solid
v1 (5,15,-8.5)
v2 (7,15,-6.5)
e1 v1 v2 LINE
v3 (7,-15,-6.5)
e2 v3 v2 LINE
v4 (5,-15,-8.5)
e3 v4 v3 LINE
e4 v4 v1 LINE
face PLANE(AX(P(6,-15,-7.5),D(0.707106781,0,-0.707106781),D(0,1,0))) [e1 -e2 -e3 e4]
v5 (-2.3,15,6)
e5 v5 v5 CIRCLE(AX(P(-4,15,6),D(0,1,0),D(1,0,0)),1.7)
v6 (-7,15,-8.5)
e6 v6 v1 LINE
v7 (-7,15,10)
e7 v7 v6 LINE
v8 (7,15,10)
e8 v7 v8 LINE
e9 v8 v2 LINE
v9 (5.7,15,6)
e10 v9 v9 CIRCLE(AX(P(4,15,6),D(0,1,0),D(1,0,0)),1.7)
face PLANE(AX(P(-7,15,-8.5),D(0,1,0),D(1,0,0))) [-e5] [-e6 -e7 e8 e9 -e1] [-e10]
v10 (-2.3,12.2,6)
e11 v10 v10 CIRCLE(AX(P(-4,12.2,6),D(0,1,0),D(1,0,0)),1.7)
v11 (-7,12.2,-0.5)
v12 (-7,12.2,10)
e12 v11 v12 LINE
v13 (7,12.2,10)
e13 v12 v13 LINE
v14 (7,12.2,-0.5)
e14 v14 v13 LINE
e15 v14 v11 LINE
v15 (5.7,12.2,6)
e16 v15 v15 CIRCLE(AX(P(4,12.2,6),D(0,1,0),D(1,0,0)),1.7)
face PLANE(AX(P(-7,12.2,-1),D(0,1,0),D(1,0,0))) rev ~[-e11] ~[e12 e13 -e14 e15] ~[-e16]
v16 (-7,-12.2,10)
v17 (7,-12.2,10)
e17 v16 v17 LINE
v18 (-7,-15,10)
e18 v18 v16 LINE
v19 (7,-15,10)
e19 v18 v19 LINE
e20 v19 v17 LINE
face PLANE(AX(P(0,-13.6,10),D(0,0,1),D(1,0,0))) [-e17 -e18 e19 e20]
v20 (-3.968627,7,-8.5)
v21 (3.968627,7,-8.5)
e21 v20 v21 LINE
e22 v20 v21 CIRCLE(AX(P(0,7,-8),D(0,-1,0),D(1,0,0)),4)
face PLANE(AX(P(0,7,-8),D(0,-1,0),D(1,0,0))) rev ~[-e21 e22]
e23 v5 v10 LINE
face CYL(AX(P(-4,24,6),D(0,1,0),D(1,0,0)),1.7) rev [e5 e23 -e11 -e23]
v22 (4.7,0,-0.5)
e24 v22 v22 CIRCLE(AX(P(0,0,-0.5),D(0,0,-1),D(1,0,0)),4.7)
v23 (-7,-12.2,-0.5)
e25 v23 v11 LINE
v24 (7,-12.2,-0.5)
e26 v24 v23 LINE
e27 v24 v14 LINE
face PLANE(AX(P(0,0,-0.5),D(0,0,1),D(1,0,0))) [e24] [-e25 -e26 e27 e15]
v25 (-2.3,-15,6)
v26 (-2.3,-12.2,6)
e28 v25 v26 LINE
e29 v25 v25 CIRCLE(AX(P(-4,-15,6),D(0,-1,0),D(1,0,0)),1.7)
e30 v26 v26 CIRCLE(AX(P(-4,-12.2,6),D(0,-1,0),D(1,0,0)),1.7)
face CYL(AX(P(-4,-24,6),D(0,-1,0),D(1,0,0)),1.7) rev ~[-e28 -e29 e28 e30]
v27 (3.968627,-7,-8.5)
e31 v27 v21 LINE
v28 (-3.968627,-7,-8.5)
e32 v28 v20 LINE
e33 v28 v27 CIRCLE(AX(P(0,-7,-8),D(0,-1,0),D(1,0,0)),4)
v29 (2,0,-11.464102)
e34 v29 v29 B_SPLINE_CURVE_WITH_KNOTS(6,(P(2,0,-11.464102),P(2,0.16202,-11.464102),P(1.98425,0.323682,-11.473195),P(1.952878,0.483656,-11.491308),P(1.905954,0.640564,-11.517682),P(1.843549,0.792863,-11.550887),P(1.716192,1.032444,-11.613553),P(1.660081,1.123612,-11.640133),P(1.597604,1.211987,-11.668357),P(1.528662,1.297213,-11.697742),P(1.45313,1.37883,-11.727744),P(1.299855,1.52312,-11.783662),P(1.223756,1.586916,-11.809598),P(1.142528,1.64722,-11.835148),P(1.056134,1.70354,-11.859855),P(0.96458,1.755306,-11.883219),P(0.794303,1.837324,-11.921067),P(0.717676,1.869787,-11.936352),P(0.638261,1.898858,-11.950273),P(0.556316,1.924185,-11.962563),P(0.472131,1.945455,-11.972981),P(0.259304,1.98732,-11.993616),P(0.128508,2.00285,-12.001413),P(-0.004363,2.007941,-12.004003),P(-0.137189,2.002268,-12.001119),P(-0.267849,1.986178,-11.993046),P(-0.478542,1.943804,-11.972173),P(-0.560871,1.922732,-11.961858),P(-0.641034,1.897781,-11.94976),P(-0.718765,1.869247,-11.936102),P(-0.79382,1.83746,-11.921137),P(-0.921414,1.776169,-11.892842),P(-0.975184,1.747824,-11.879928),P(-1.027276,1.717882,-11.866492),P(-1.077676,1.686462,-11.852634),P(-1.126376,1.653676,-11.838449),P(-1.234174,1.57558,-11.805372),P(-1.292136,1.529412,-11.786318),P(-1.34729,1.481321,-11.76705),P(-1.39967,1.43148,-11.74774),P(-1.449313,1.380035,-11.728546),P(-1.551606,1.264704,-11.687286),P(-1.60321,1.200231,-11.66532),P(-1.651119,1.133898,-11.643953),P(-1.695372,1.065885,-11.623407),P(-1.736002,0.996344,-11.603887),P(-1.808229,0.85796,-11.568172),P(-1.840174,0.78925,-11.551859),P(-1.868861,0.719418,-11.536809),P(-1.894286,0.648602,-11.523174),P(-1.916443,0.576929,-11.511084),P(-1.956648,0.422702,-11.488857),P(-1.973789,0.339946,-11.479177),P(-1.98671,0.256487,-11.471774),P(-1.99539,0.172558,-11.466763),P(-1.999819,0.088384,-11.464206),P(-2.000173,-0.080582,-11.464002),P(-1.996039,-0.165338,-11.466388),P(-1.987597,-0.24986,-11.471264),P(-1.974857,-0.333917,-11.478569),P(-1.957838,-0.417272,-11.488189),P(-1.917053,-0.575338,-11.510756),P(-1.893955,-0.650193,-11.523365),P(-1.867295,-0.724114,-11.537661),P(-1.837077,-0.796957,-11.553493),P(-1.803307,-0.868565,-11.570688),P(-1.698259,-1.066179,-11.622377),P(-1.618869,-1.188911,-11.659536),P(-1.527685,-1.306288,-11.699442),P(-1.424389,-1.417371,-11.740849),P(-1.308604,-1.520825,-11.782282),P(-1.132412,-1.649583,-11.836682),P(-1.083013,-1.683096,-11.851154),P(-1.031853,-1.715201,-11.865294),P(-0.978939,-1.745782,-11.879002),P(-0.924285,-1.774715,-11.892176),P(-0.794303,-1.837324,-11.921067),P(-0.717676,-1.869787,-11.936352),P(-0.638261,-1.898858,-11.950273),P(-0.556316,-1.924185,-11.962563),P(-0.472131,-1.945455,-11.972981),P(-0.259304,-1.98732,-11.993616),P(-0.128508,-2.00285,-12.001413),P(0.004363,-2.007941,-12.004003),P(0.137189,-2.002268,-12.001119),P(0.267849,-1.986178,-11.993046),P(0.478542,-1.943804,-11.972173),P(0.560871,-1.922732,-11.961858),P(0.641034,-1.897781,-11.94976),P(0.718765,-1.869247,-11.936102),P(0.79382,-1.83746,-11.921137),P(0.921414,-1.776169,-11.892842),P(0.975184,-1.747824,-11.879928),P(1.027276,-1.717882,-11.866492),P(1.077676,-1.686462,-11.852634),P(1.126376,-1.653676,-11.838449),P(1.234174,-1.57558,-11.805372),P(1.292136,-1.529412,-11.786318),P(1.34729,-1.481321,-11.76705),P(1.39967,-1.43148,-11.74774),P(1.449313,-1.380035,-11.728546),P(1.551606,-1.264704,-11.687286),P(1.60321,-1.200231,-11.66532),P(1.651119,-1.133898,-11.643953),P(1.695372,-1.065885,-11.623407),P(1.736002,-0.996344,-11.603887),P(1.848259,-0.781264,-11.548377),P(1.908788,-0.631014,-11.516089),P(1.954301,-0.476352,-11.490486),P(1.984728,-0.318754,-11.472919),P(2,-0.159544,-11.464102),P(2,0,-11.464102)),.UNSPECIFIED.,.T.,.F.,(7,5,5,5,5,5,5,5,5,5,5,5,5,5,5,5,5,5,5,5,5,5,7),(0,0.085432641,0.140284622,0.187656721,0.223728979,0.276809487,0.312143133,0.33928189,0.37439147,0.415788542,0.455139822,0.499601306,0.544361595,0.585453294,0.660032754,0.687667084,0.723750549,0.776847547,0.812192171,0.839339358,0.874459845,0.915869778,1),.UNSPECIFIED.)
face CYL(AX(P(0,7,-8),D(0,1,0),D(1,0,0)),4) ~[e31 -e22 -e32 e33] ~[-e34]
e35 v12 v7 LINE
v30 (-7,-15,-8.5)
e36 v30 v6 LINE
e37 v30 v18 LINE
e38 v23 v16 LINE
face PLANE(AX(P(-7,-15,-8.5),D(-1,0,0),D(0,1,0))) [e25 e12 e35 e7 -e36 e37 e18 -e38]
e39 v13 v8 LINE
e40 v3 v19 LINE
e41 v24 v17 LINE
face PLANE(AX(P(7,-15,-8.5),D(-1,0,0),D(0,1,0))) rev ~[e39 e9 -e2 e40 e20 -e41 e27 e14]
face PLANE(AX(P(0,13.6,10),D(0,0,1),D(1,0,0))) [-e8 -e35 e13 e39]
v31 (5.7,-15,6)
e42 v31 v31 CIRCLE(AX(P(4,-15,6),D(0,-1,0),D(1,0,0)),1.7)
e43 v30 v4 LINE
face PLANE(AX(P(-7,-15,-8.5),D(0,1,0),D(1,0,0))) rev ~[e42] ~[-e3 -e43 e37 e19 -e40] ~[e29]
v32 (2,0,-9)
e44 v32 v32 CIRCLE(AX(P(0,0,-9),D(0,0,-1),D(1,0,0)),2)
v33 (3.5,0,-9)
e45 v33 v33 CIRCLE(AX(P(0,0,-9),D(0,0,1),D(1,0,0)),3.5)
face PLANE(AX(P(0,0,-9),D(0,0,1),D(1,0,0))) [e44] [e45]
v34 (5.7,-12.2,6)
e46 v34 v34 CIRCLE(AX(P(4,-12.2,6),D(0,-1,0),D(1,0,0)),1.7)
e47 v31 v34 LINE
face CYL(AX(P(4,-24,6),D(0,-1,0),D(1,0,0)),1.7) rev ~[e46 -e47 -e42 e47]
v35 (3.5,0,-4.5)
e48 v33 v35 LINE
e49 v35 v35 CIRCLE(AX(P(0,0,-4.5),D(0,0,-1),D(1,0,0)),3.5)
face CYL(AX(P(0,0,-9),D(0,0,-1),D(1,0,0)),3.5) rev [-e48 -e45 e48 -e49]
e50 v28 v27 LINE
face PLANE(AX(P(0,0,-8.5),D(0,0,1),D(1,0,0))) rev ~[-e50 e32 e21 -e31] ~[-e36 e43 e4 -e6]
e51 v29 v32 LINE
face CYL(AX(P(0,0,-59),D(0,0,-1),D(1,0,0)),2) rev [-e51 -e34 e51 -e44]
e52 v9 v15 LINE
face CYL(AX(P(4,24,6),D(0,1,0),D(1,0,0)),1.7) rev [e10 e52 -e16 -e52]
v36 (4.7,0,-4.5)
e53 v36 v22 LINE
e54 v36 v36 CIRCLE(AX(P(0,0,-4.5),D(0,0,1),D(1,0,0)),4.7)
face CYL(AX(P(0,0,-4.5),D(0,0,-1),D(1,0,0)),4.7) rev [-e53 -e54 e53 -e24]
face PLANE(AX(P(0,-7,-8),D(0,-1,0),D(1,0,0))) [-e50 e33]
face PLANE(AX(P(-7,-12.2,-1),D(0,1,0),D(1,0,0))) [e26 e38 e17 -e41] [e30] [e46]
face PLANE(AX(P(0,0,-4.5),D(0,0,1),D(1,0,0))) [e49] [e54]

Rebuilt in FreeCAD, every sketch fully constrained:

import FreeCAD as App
import Part
import Sketcher
from FreeCAD import Vector


def edges_at(feature, points):
    """Names of the edges that pass closest to the given points."""
    edges = feature.Shape.Edges
    near = lambda p: min(range(len(edges)), key=lambda i: edges[i].distToShape(Part.Vertex(*p))[0])
    return sorted({f"Edge{near(p) + 1}" for p in points})


def add_polygon(sketch, points):
    """Adds a closed chain of lines whose ends are joined by coincident constraints."""
    first, n = sketch.GeometryCount, len(points)
    for a, b in zip(points, points[1:] + points[:1]):
        sketch.addGeometry(Part.LineSegment(App.Vector(*a, 0), App.Vector(*b, 0)), False)
    for i in range(n):
        sketch.addConstraint(Sketcher.Constraint("Coincident", first + i, 2, first + (i + 1) % n, 1))

doc = App.newDocument("Part")
body = doc.addObject("PartDesign::Body", "Body")

sketch1 = doc.addObject("Sketcher::SketchObject", "Sketch")
body.addObject(sketch1)
sketch1.AttachmentSupport = (doc.XY_Plane, [""])
sketch1.MapMode = "FlatFace"
sketch1.AttachmentOffset = App.Placement(Vector(0, 0, -9), App.Rotation())
sketch1.addGeometry(Part.Circle(Vector(0, 0, 0), Vector(0, 0, 1), 3.5), False)
sketch1.addConstraint([
    Sketcher.Constraint("Coincident", 0, 3, -1, 1),
    Sketcher.Constraint("Diameter", 0, 7.0),
])
pad1 = doc.addObject("PartDesign::Pad", "Pad")
body.addObject(pad1)
pad1.Profile = sketch1
pad1.Length = 30
body2 = doc.addObject("PartDesign::Body", "Body001")

sketch2 = doc.addObject("Sketcher::SketchObject", "Sketch001")
body2.addObject(sketch2)
sketch2.AttachmentSupport = (doc.getObject("XY_Plane001"), [""])
sketch2.MapMode = "FlatFace"
sketch2.AttachmentOffset = App.Placement(Vector(0, 0, -4.5), App.Rotation())
sketch2.addGeometry(Part.Circle(Vector(0, 0, 0), Vector(0, 0, 1), 4.7), False)
sketch2.addConstraint([
    Sketcher.Constraint("Coincident", 0, 3, -1, 1),
    Sketcher.Constraint("Diameter", 0, 9.4),
])
pad2 = doc.addObject("PartDesign::Pad", "Pad001")
body2.addObject(pad2)
pad2.Profile = sketch2
pad2.Length = 30
doc.recompute()

boolean = doc.addObject("PartDesign::Boolean", "Boolean")
body2.addObject(boolean)
boolean.Type = "Fuse"
boolean.addObjects([body])
body3 = doc.addObject("PartDesign::Body", "Body002")

sketch3 = doc.addObject("Sketcher::SketchObject", "Sketch002")
body3.addObject(sketch3)
sketch3.AttachmentSupport = (doc.getObject("XY_Plane002"), [""])
sketch3.MapMode = "FlatFace"
sketch3.AttachmentOffset = App.Placement(Vector(0, 0, -59), App.Rotation())
sketch3.addGeometry(Part.Circle(Vector(0, 0, 0), Vector(0, 0, 1), 2), False)
sketch3.addConstraint([
    Sketcher.Constraint("Coincident", 0, 3, -1, 1),
    Sketcher.Constraint("Diameter", 0, 4.0),
])
pad3 = doc.addObject("PartDesign::Pad", "Pad002")
body3.addObject(pad3)
pad3.Profile = sketch3
pad3.Length = 62
body4 = doc.addObject("PartDesign::Body", "Body003")

sketch4 = doc.addObject("Sketcher::SketchObject", "Sketch003")
body4.addObject(sketch4)
sketch4.AttachmentSupport = (doc.getObject("XY_Plane003"), [""])
sketch4.MapMode = "FlatFace"
sketch4.addGeometry(Part.Circle(Vector(0, 0, 0), Vector(0, 0, 1), 4), False)
sketch4.addConstraint([
    Sketcher.Constraint("Coincident", 0, 3, -1, 1),
    Sketcher.Constraint("Diameter", 0, 8.0),
])
pad4 = doc.addObject("PartDesign::Pad", "Pad003")
body4.addObject(pad4)
pad4.Profile = sketch4
pad4.Length = 14
body5 = doc.addObject("PartDesign::Body", "Body004")
doc.recompute()

body4.Placement = App.Placement(Vector(0, 0, 0), App.Rotation(Vector(1, 0, 0), 90))
boolean2 = doc.addObject("PartDesign::Boolean", "Boolean001")
body5.addObject(boolean2)
boolean2.Type = "Fuse"
boolean2.addObjects([body4])
body6 = doc.addObject("PartDesign::Body", "Body005")
doc.recompute()

body5.Placement = App.Placement(Vector(0, 7, -8), App.Rotation(Vector(0, 0, 1), 0))
boolean3 = doc.addObject("PartDesign::Boolean", "Boolean002")
body6.addObject(boolean3)
boolean3.Type = "Fuse"
boolean3.addObjects([body5])
doc.recompute()

boolean4 = doc.addObject("PartDesign::Boolean", "Boolean003")
body6.addObject(boolean4)
boolean4.Type = "Cut"
boolean4.addObjects([body3])
body7 = doc.addObject("PartDesign::Body", "Body006")

sketch5 = doc.addObject("Sketcher::SketchObject", "Sketch004")
body7.addObject(sketch5)
sketch5.AttachmentSupport = (doc.getObject("XY_Plane006"), [""])
sketch5.MapMode = "FlatFace"
sketch5.addGeometry(Part.Circle(Vector(0, 0, 0), Vector(0, 0, 1), 1.7), False)
sketch5.addConstraint([
    Sketcher.Constraint("Coincident", 0, 3, -1, 1),
    Sketcher.Constraint("Diameter", 0, 3.4),
])
pad5 = doc.addObject("PartDesign::Pad", "Pad004")
body7.addObject(pad5)
pad5.Profile = sketch5
pad5.Length = 19
body8 = doc.addObject("PartDesign::Body", "Body007")
doc.recompute()

body7.Placement = App.Placement(Vector(0, 0, 0), App.Rotation(Vector(1, 0, 0), 90))
boolean5 = doc.addObject("PartDesign::Boolean", "Boolean004")
body8.addObject(boolean5)
boolean5.Type = "Fuse"
boolean5.addObjects([body7])
body9 = doc.addObject("PartDesign::Body", "Body008")
doc.recompute()

body8.Placement = App.Placement(Vector(4, 24, 6), App.Rotation(Vector(0, 0, 1), 0))
boolean6 = doc.addObject("PartDesign::Boolean", "Boolean005")
body9.addObject(boolean6)
boolean6.Type = "Fuse"
boolean6.addObjects([body8])
body10 = doc.addObject("PartDesign::Body", "Body009")

sketch6 = doc.addObject("Sketcher::SketchObject", "Sketch005")
body10.addObject(sketch6)
sketch6.AttachmentSupport = (doc.getObject("XY_Plane009"), [""])
sketch6.MapMode = "FlatFace"
sketch6.addGeometry(Part.Circle(Vector(0, 0, 0), Vector(0, 0, 1), 1.7), False)
sketch6.addConstraint([
    Sketcher.Constraint("Coincident", 0, 3, -1, 1),
    Sketcher.Constraint("Diameter", 0, 3.4),
])
pad6 = doc.addObject("PartDesign::Pad", "Pad005")
body10.addObject(pad6)
pad6.Profile = sketch6
pad6.Length = 19
body11 = doc.addObject("PartDesign::Body", "Body010")
doc.recompute()

body10.Placement = App.Placement(Vector(0, 0, 0), App.Rotation(Vector(1, 0, 0), 90))
boolean7 = doc.addObject("PartDesign::Boolean", "Boolean006")
body11.addObject(boolean7)
boolean7.Type = "Fuse"
boolean7.addObjects([body10])
body12 = doc.addObject("PartDesign::Body", "Body011")
doc.recompute()

body11.Placement = App.Placement(Vector(4, 24, 6), App.Rotation(Vector(0, 0, 1), 0))
boolean8 = doc.addObject("PartDesign::Boolean", "Boolean007")
body12.addObject(boolean8)
boolean8.Type = "Fuse"
boolean8.addObjects([body11])
body13 = doc.addObject("PartDesign::Body", "Body012")
doc.recompute()

mirroring = doc.addObject("Part::Mirroring", "Mirroring")
mirroring.Source = body12
mirroring.Base = Vector(0, 0, 0)
mirroring.Normal = Vector(0, 1, 0)
body13.BaseFeature = mirroring
doc.recompute()
body14 = doc.addObject("PartDesign::Body", "Body013")

sketch7 = doc.addObject("Sketcher::SketchObject", "Sketch006")
body14.addObject(sketch7)
sketch7.AttachmentSupport = (doc.getObject("XY_Plane013"), [""])
sketch7.MapMode = "FlatFace"
sketch7.addGeometry(Part.Circle(Vector(0, 0, 0), Vector(0, 0, 1), 1.7), False)
sketch7.addConstraint([
    Sketcher.Constraint("Coincident", 0, 3, -1, 1),
    Sketcher.Constraint("Diameter", 0, 3.4),
])
pad7 = doc.addObject("PartDesign::Pad", "Pad006")
body14.addObject(pad7)
pad7.Profile = sketch7
pad7.Length = 19
body15 = doc.addObject("PartDesign::Body", "Body014")
doc.recompute()

body14.Placement = App.Placement(Vector(0, 0, 0), App.Rotation(Vector(1, 0, 0), 90))
boolean9 = doc.addObject("PartDesign::Boolean", "Boolean008")
body15.addObject(boolean9)
boolean9.Type = "Fuse"
boolean9.addObjects([body14])
body16 = doc.addObject("PartDesign::Body", "Body015")
doc.recompute()

body15.Placement = App.Placement(Vector(-4, 24, 6), App.Rotation(Vector(0, 0, 1), 0))
boolean10 = doc.addObject("PartDesign::Boolean", "Boolean009")
body16.addObject(boolean10)
boolean10.Type = "Fuse"
boolean10.addObjects([body15])
body17 = doc.addObject("PartDesign::Body", "Body016")
doc.recompute()

mirroring2 = doc.addObject("Part::Mirroring", "Mirroring001")
mirroring2.Source = body16
mirroring2.Base = Vector(0, 0, 0)
mirroring2.Normal = Vector(0, 1, 0)
body17.BaseFeature = mirroring2
doc.recompute()
body18 = doc.addObject("PartDesign::Body", "Body017")

sketch8 = doc.addObject("Sketcher::SketchObject", "Sketch007")
body18.addObject(sketch8)
sketch8.AttachmentSupport = (doc.getObject("XY_Plane017"), [""])
sketch8.MapMode = "FlatFace"
sketch8.addGeometry(Part.Circle(Vector(0, 0, 0), Vector(0, 0, 1), 1.7), False)
sketch8.addConstraint([
    Sketcher.Constraint("Coincident", 0, 3, -1, 1),
    Sketcher.Constraint("Diameter", 0, 3.4),
])
pad8 = doc.addObject("PartDesign::Pad", "Pad007")
body18.addObject(pad8)
pad8.Profile = sketch8
pad8.Length = 19
body19 = doc.addObject("PartDesign::Body", "Body018")
doc.recompute()

body18.Placement = App.Placement(Vector(0, 0, 0), App.Rotation(Vector(1, 0, 0), 90))
boolean11 = doc.addObject("PartDesign::Boolean", "Boolean010")
body19.addObject(boolean11)
boolean11.Type = "Fuse"
boolean11.addObjects([body18])
body20 = doc.addObject("PartDesign::Body", "Body019")
body20.AllowCompound = True
doc.recompute()

body19.Placement = App.Placement(Vector(-4, 24, 6), App.Rotation(Vector(0, 0, 1), 0))
boolean12 = doc.addObject("PartDesign::Boolean", "Boolean011")
body20.addObject(boolean12)
boolean12.Type = "Fuse"
boolean12.addObjects([body19])
doc.recompute()

boolean13 = doc.addObject("PartDesign::Boolean", "Boolean012")
body20.addObject(boolean13)
boolean13.Type = "Fuse"
boolean13.addObjects([body9])
doc.recompute()

boolean14 = doc.addObject("PartDesign::Boolean", "Boolean013")
body20.addObject(boolean14)
boolean14.Type = "Fuse"
boolean14.addObjects([body13])
doc.recompute()

boolean15 = doc.addObject("PartDesign::Boolean", "Boolean014")
body20.addObject(boolean15)
boolean15.Type = "Fuse"
boolean15.addObjects([body17])
body21 = doc.addObject("PartDesign::Body", "Body020")

sketch9 = doc.addObject("Sketcher::SketchObject", "Sketch008")
body21.addObject(sketch9)
sketch9.AttachmentSupport = (doc.getObject("XY_Plane020"), [""])
sketch9.MapMode = "FlatFace"
sketch9.AttachmentOffset = App.Placement(Vector(0, 0, -1), App.Rotation())
add_polygon(sketch9, [(-7, 15), (-7, 12.2), (7, 12.2), (7, 15)])
sketch9.addConstraint([
    Sketcher.Constraint("Vertical", 0),
    Sketcher.Constraint("Horizontal", 1),
    Sketcher.Constraint("Vertical", 2),
    Sketcher.Constraint("Horizontal", 3),
    Sketcher.Constraint("DistanceX", 1, 1, 1, 2, 14.0),
    Sketcher.Constraint("DistanceY", 0, 2, 0, 1, 2.8),
    Sketcher.Constraint("DistanceX", 0, 2, -1, 1, 7.0),
    Sketcher.Constraint("DistanceY", -1, 1, 2, 2, 15.0),
])
pad9 = doc.addObject("PartDesign::Pad", "Pad008")
body21.addObject(pad9)
pad9.Profile = sketch9
pad9.Length = 11
body22 = doc.addObject("PartDesign::Body", "Body021")

sketch10 = doc.addObject("Sketcher::SketchObject", "Sketch009")
body22.addObject(sketch10)
sketch10.AttachmentSupport = (doc.getObject("XY_Plane021"), [""])
sketch10.MapMode = "FlatFace"
sketch10.AttachmentOffset = App.Placement(Vector(0, 0, -1), App.Rotation())
add_polygon(sketch10, [(-7, -12.2), (-7, -15), (7, -15), (7, -12.2)])
sketch10.addConstraint([
    Sketcher.Constraint("Vertical", 0),
    Sketcher.Constraint("Horizontal", 1),
    Sketcher.Constraint("Vertical", 2),
    Sketcher.Constraint("Horizontal", 3),
    Sketcher.Constraint("DistanceX", 1, 1, 1, 2, 14.0),
    Sketcher.Constraint("DistanceY", 0, 2, 0, 1, 2.8),
    Sketcher.Constraint("DistanceX", 0, 2, -1, 1, 7.0),
    Sketcher.Constraint("DistanceY", 0, 2, -1, 1, 15.0),
])
pad10 = doc.addObject("PartDesign::Pad", "Pad009")
body22.addObject(pad10)
pad10.Profile = sketch10
pad10.Length = 11
body23 = doc.addObject("PartDesign::Body", "Body022")

sketch11 = doc.addObject("Sketcher::SketchObject", "Sketch010")
body23.addObject(sketch11)
sketch11.AttachmentSupport = (doc.getObject("XY_Plane022"), [""])
sketch11.MapMode = "FlatFace"
sketch11.AttachmentOffset = App.Placement(Vector(0, 0, -8.5), App.Rotation())
add_polygon(sketch11, [(-7, 15), (-7, -15), (7, -15), (7, 15)])
sketch11.addConstraint([
    Sketcher.Constraint("Vertical", 0),
    Sketcher.Constraint("Horizontal", 1),
    Sketcher.Constraint("Vertical", 2),
    Sketcher.Constraint("Horizontal", 3),
    Sketcher.Constraint("Symmetric", 0, 2, 2, 2, -1, 1),
    Sketcher.Constraint("DistanceX", 1, 1, 1, 2, 14.0),
    Sketcher.Constraint("DistanceY", 0, 2, 0, 1, 30.0),
])
pad11 = doc.addObject("PartDesign::Pad", "Pad010")
body23.addObject(pad11)
pad11.Profile = sketch11
pad11.Length = 8
doc.recompute()

boolean16 = doc.addObject("PartDesign::Boolean", "Boolean015")
body23.addObject(boolean16)
boolean16.Type = "Fuse"
boolean16.addObjects([body21])
doc.recompute()

boolean17 = doc.addObject("PartDesign::Boolean", "Boolean016")
body23.addObject(boolean17)
boolean17.Type = "Fuse"
boolean17.addObjects([body22])
doc.recompute()

boolean18 = doc.addObject("PartDesign::Boolean", "Boolean017")
body23.addObject(boolean18)
boolean18.Type = "Cut"
boolean18.addObjects([body20])
doc.recompute()

boolean19 = doc.addObject("PartDesign::Boolean", "Boolean018")
body23.addObject(boolean19)
boolean19.Type = "Fuse"
boolean19.addObjects([body6])
doc.recompute()

boolean20 = doc.addObject("PartDesign::Boolean", "Boolean019")
body23.addObject(boolean20)
boolean20.Type = "Cut"
boolean20.addObjects([body2])
doc.recompute()

chamfer = doc.addObject("PartDesign::Chamfer", "Chamfer")
body23.addObject(chamfer)
chamfer.Base = (boolean20, edges_at(boolean20, [(7, 0, -8.5)]))
chamfer.Size = 2
mirroring.Visibility = False
mirroring2.Visibility = False

doc.recompute()
